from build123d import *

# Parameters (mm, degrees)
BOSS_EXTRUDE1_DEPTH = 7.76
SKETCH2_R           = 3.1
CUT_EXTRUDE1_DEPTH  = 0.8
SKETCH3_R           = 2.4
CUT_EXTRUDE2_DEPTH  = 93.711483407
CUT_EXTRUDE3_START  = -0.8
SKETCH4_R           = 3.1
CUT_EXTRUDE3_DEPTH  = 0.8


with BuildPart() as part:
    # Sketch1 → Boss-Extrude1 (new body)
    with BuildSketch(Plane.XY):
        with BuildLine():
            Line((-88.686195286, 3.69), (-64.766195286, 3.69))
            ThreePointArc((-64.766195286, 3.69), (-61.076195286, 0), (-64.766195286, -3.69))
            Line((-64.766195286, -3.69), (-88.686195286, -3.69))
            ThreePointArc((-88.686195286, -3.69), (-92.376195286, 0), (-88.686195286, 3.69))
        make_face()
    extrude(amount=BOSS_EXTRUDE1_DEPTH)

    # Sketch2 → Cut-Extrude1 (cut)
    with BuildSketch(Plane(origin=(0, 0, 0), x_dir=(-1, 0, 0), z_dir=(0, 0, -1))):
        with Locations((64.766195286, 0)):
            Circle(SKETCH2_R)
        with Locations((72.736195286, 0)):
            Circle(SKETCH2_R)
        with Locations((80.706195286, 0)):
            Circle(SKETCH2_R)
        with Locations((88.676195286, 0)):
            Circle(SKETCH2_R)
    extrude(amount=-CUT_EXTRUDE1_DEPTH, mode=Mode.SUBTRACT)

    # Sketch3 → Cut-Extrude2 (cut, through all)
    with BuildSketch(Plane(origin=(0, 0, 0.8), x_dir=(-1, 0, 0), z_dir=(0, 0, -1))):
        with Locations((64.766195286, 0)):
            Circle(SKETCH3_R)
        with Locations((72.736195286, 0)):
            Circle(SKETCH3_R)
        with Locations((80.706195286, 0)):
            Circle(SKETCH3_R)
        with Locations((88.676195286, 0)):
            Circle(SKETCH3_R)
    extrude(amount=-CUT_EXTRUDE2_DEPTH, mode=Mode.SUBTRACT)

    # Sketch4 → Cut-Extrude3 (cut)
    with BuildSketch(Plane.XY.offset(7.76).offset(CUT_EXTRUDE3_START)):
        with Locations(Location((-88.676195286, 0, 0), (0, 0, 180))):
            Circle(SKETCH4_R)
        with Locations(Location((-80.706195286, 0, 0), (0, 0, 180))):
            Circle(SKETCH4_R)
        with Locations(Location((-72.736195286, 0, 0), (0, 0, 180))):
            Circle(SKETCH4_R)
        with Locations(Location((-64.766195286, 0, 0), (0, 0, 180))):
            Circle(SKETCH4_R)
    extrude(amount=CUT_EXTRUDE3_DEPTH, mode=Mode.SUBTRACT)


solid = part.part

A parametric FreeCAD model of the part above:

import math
import FreeCAD as App
import Part
import Sketcher

V = App.Vector
Q = App.Units.Quantity

doc = App.newDocument("Part")
params = doc.addObject("Spreadsheet::Sheet", "Params")
for row, (alias, value) in enumerate([
    ("sketch1_radius", "3.69 mm"),
    ("sketch1_width", "23.92 mm"),
    ("pad1_length", "7.76 mm"),
    ("sketch2_diameter", "6.2 mm"),
    ("pocket1_length", "0.8 mm"),
    ("sketch3_diameter", "4.8 mm"),
    ("sketch4_diameter", "6.2 mm"),
    ("pocket3_length", "0.8 mm"),
], start=1):
    params.set(f"A{row}", alias)
    params.set(f"B{row}", "=" + value)
    params.setAlias(f"B{row}", alias)

body = doc.addObject("PartDesign::Body", "Body")

sketch1 = body.newObject("Sketcher::SketchObject", "Sketch")
sketch1.AttachmentSupport = (doc.getObject("XY_Plane"), [""])
sketch1.MapMode = "FlatFace"
sketch1.addGeometry([
    Part.LineSegment(V(-64.8, 3.7, 0), V(-88.7, 3.7, 0)),
    Part.ArcOfCircle(Part.Circle(V(-88.7, 0, 0), V(0, 0, 1), 3.7), math.radians(90), math.radians(270)),
    Part.LineSegment(V(-88.7, -3.7, 0), V(-64.8, -3.7, 0)),
    Part.ArcOfCircle(Part.Circle(V(-64.8, 0, 0), V(0, 0, 1), 3.7), math.radians(-90), math.radians(90)),
], False)
sketch1.addConstraint([
    Sketcher.Constraint("Tangent", 0, 2, 1, 1),
    Sketcher.Constraint("Tangent", 1, 2, 2, 1),
    Sketcher.Constraint("Tangent", 2, 2, 3, 1),
    Sketcher.Constraint("Tangent", 3, 2, 0, 1),
    Sketcher.Constraint("Horizontal", 0),
    Sketcher.Constraint("Horizontal", 2),
    Sketcher.Constraint("PointOnObject", 1, 3, -1),
    Sketcher.Constraint("Radius", 1, Q("3.69 mm")),
    Sketcher.Constraint("DistanceX", 0, 2, 0, 1, Q("23.92 mm")),
    Sketcher.Constraint("DistanceX", 1, 3, -1, 1, Q("88.686195 mm")),
])
sketch1.setExpression("Constraints[7]", "Params.sketch1_radius")
sketch1.setExpression("Constraints[8]", "Params.sketch1_width")
pad1 = body.newObject("PartDesign::Pad", "Pad")
pad1.Profile = sketch1
pad1.setExpression("Length", "Params.pad1_length")

sketch2 = body.newObject("Sketcher::SketchObject", "Sketch001")
sketch2.AttachmentSupport = (doc.getObject("XY_Plane"), [""])
sketch2.MapMode = "FlatFace"
sketch2.addGeometry([
    Part.Circle(V(-64.8, 0, 0), V(0, 0, 1), 3.1),
    Part.Circle(V(-72.7, 0, 0), V(0, 0, 1), 3.1),
    Part.Circle(V(-80.7, 0, 0), V(0, 0, 1), 3.1),
    Part.Circle(V(-88.7, 0, 0), V(0, 0, 1), 3.1),
], False)
sketch2.addConstraint([
    Sketcher.Constraint("Equal", 0, 1),
    Sketcher.Constraint("Equal", 1, 2),
    Sketcher.Constraint("Equal", 2, 3),
    Sketcher.Constraint("PointOnObject", 0, 3, -1),
    Sketcher.Constraint("PointOnObject", 1, 3, -1),
    Sketcher.Constraint("PointOnObject", 2, 3, -1),
    Sketcher.Constraint("PointOnObject", 3, 3, -1),
    Sketcher.Constraint("Diameter", 0, Q("6.2 mm")),
    Sketcher.Constraint("DistanceX", 1, 3, 0, 3, Q("7.97 mm")),
    Sketcher.Constraint("DistanceX", 2, 3, 1, 3, Q("7.97 mm")),
    Sketcher.Constraint("DistanceX", 3, 3, 2, 3, Q("7.97 mm")),
    Sketcher.Constraint("DistanceX", 0, 3, -1, 1, Q("64.766195 mm")),
])
sketch2.setExpression("Constraints[7]", "Params.sketch2_diameter")
pocket1 = body.newObject("PartDesign::Pocket", "Pocket")
pocket1.Profile = sketch2
pocket1.setExpression("Length", "Params.pocket1_length")
pocket1.Reversed = True

sketch3 = body.newObject("Sketcher::SketchObject", "Sketch002")
sketch3.AttachmentSupport = (doc.getObject("XY_Plane"), [""])
sketch3.MapMode = "FlatFace"
sketch3.AttachmentOffset = App.Placement(V(0, 0, 0.8), App.Rotation())
sketch3.addGeometry([
    Part.Circle(V(-64.8, 0, 0), V(0, 0, 1), 2.4),
    Part.Circle(V(-72.7, 0, 0), V(0, 0, 1), 2.4),
    Part.Circle(V(-80.7, 0, 0), V(0, 0, 1), 2.4),
    Part.Circle(V(-88.7, 0, 0), V(0, 0, 1), 2.4),
], False)
sketch3.addConstraint([
    Sketcher.Constraint("Equal", 0, 1),
    Sketcher.Constraint("Equal", 1, 2),
    Sketcher.Constraint("Equal", 2, 3),
    Sketcher.Constraint("PointOnObject", 0, 3, -1),
    Sketcher.Constraint("PointOnObject", 1, 3, -1),
    Sketcher.Constraint("PointOnObject", 2, 3, -1),
    Sketcher.Constraint("PointOnObject", 3, 3, -1),
    Sketcher.Constraint("Diameter", 0, Q("4.8 mm")),
    Sketcher.Constraint("DistanceX", 1, 3, 0, 3, Q("7.97 mm")),
    Sketcher.Constraint("DistanceX", 2, 3, 1, 3, Q("7.97 mm")),
    Sketcher.Constraint("DistanceX", 3, 3, 2, 3, Q("7.97 mm")),
    Sketcher.Constraint("DistanceX", 0, 3, -1, 1, Q("64.766195 mm")),
])
sketch3.setExpression("Constraints[7]", "Params.sketch3_diameter")
pocket2 = body.newObject("PartDesign::Pocket", "Pocket001")
pocket2.Profile = sketch3
pocket2.Type = "ThroughAll"
pocket2.Reversed = True

sketch4 = body.newObject("Sketcher::SketchObject", "Sketch003")
sketch4.AttachmentSupport = (doc.getObject("XY_Plane"), [""])
sketch4.MapMode = "FlatFace"
sketch4.AttachmentOffset = App.Placement(V(0, 0, 6.96), App.Rotation())
sketch4.addGeometry([
    Part.Circle(V(-88.7, 0, 0), V(0, 0, 1), 3.1),
    Part.Circle(V(-80.7, 0, 0), V(0, 0, 1), 3.1),
    Part.Circle(V(-72.7, 0, 0), V(0, 0, 1), 3.1),
    Part.Circle(V(-64.8, 0, 0), V(0, 0, 1), 3.1),
], False)
sketch4.addConstraint([
    Sketcher.Constraint("Equal", 0, 1),
    Sketcher.Constraint("Equal", 1, 2),
    Sketcher.Constraint("Equal", 2, 3),
    Sketcher.Constraint("PointOnObject", 0, 3, -1),
    Sketcher.Constraint("PointOnObject", 1, 3, -1),
    Sketcher.Constraint("PointOnObject", 2, 3, -1),
    Sketcher.Constraint("PointOnObject", 3, 3, -1),
    Sketcher.Constraint("Diameter", 0, Q("6.2 mm")),
    Sketcher.Constraint("DistanceX", 0, 3, 1, 3, Q("7.97 mm")),
    Sketcher.Constraint("DistanceX", 1, 3, 2, 3, Q("7.97 mm")),
    Sketcher.Constraint("DistanceX", 2, 3, 3, 3, Q("7.97 mm")),
    Sketcher.Constraint("DistanceX", 0, 3, -1, 1, Q("88.676195 mm")),
])
sketch4.setExpression("Constraints[7]", "Params.sketch4_diameter")
pocket3 = body.newObject("PartDesign::Pocket", "Pocket002")
pocket3.Profile = sketch4
pocket3.setExpression("Length", "Params.pocket3_length")
pocket3.Reversed = True

doc.recompute()
